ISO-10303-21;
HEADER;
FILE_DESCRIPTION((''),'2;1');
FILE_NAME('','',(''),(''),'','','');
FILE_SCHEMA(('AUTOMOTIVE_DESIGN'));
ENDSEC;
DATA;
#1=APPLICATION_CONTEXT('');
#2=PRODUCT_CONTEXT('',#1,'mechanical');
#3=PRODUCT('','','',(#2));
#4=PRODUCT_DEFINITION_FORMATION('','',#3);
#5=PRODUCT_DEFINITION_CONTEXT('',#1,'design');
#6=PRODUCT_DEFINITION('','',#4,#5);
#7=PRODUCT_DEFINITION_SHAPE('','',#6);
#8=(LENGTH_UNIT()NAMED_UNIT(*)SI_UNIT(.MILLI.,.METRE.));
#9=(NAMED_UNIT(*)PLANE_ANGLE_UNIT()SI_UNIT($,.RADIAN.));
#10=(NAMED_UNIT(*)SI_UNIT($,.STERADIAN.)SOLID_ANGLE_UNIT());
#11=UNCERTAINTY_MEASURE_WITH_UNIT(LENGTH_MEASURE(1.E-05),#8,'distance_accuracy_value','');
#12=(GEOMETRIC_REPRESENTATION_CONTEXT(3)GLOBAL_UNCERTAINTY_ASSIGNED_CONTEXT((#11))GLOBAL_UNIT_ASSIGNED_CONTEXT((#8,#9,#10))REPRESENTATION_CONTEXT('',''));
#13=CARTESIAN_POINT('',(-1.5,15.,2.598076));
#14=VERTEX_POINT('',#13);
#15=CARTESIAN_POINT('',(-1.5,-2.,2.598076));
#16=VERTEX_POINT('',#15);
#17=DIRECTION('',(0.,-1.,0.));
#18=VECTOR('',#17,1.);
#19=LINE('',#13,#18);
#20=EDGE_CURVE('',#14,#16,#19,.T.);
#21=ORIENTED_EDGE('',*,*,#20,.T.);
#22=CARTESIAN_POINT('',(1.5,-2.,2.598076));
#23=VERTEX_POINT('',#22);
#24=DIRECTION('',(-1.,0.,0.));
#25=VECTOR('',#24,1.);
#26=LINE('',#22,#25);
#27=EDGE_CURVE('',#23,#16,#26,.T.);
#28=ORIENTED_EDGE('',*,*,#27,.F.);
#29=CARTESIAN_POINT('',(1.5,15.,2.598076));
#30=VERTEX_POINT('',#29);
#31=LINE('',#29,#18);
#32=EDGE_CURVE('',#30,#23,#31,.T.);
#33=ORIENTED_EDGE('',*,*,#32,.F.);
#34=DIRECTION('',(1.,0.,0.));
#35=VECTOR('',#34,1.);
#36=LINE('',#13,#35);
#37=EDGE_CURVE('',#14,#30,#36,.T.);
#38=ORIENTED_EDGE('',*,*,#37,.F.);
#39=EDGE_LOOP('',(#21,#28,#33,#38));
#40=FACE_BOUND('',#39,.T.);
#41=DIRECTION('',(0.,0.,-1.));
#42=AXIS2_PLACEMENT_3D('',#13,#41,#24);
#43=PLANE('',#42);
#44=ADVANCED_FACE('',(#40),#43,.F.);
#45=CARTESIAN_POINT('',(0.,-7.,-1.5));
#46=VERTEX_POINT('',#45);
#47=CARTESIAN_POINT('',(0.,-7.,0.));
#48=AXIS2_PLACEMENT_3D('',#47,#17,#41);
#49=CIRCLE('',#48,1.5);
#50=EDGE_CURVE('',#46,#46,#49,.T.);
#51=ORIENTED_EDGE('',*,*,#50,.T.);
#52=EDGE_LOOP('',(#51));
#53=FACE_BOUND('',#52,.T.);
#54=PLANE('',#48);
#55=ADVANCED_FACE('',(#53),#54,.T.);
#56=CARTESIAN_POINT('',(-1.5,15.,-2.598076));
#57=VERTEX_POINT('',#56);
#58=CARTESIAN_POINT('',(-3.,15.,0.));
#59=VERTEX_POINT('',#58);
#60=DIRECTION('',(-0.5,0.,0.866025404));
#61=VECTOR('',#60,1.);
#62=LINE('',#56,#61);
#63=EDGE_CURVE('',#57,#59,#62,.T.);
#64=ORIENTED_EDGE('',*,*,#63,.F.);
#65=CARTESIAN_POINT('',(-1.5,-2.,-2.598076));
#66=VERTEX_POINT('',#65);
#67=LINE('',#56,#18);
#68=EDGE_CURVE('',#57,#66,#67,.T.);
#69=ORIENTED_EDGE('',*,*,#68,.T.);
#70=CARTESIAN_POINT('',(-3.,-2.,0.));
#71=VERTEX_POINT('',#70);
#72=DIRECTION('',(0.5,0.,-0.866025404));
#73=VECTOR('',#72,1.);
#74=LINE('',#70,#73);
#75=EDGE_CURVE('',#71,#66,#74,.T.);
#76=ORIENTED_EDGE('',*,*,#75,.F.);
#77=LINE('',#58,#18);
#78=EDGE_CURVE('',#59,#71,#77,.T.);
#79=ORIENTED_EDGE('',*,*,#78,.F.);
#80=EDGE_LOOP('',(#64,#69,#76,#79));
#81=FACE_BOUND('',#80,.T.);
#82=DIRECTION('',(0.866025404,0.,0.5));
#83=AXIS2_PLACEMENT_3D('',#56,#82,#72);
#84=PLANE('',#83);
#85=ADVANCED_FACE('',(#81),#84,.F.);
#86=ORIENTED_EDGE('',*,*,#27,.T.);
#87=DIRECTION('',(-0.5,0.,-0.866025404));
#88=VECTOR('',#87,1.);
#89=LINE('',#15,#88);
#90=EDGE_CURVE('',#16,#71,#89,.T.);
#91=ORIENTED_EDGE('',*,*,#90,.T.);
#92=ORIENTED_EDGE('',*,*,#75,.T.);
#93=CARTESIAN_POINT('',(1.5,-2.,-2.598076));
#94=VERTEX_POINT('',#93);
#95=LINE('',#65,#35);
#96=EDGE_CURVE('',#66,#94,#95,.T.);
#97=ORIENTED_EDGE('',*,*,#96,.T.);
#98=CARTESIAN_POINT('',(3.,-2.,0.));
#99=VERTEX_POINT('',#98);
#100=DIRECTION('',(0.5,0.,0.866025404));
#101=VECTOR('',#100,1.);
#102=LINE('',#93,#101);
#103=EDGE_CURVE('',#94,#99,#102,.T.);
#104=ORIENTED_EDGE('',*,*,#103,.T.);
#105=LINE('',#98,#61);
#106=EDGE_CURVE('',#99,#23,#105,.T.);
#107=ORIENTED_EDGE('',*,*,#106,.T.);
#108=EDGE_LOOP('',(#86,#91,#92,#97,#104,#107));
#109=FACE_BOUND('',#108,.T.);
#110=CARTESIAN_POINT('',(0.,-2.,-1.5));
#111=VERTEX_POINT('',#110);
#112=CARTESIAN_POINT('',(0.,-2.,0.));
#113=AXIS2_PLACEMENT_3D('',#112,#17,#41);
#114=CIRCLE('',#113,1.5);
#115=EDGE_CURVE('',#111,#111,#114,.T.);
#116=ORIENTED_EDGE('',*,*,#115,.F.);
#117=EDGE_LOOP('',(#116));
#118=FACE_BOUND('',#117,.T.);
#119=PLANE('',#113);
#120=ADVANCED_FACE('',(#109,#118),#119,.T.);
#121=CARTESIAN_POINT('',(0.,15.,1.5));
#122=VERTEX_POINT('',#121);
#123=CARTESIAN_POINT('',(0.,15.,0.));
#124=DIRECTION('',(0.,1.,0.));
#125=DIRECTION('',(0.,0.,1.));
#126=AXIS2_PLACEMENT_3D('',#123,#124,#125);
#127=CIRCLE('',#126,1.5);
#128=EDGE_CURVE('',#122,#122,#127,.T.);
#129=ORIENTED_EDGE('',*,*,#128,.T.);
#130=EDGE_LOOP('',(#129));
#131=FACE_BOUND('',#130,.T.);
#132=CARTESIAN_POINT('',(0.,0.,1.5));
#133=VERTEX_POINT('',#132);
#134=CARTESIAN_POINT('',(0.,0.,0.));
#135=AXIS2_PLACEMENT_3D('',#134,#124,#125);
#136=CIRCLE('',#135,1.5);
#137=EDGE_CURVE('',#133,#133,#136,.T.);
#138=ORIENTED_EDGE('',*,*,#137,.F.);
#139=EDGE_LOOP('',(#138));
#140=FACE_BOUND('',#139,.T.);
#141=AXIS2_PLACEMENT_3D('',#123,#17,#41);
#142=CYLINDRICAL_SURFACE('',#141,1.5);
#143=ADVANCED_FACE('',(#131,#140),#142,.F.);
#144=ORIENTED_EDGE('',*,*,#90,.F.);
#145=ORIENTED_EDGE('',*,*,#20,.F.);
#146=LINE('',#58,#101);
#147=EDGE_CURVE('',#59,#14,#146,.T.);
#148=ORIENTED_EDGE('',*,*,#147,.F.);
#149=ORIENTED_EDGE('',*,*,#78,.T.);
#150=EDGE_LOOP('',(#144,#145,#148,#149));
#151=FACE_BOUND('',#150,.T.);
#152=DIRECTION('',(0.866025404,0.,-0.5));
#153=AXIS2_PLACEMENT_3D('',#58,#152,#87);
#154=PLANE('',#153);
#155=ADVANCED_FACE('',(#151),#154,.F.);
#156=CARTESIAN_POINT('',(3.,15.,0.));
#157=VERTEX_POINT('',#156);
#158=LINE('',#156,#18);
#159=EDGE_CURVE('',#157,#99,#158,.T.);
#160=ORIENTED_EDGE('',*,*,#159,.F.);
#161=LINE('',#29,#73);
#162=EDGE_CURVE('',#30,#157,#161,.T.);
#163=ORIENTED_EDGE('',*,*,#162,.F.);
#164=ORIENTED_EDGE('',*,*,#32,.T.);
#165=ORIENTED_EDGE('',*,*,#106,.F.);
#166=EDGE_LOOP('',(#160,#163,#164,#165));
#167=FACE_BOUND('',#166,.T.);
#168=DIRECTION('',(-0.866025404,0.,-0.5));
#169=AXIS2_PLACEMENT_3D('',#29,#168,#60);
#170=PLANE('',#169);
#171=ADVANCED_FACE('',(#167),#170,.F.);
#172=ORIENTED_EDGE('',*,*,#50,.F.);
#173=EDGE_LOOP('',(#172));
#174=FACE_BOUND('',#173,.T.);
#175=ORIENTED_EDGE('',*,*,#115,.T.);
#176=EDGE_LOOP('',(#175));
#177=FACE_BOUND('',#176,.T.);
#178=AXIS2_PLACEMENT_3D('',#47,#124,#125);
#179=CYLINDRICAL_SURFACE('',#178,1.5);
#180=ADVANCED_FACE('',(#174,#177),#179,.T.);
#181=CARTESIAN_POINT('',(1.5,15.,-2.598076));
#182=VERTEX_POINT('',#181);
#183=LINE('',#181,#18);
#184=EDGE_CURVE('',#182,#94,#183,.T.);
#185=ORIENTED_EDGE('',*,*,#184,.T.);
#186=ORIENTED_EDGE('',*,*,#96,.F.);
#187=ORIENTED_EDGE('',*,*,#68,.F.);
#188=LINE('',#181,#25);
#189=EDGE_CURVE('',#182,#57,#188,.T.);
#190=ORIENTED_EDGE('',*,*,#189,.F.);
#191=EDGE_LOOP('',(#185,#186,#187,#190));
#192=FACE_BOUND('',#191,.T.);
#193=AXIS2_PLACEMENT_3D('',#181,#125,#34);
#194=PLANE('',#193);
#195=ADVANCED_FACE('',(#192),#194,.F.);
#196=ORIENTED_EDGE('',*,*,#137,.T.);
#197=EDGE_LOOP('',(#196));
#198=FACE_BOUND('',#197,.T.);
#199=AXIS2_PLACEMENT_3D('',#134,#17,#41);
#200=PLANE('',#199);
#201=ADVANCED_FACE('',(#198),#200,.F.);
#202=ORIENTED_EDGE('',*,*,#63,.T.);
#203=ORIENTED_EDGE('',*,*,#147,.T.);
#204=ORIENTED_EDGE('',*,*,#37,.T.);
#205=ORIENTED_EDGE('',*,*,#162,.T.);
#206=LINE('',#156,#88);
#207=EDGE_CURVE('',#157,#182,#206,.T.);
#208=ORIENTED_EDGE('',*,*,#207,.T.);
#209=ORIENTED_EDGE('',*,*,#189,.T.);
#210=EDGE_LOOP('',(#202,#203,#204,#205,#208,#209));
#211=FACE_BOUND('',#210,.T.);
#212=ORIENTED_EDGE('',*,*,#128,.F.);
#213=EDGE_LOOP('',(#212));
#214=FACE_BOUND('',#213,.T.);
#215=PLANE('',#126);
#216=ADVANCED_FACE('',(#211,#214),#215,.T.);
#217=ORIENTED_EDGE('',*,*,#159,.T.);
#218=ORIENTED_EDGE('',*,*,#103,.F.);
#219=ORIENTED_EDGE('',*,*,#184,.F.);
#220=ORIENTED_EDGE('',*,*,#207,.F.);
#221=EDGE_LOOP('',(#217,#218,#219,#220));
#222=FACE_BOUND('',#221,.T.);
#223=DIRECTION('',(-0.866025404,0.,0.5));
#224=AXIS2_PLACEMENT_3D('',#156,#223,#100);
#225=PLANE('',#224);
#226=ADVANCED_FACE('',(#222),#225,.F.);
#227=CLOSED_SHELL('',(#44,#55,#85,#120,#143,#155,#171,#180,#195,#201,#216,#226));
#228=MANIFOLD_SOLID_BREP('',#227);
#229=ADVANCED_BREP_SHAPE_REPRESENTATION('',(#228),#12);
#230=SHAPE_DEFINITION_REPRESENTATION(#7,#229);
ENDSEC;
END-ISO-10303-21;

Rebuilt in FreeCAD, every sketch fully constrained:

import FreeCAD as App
import Part
import Sketcher
Q = App.Units.Quantity

doc = App.newDocument("Part")
body = doc.addObject("PartDesign::Body", "Body")

sketch1 = body.newObject("Sketcher::SketchObject", "Sketch")
sketch1.AttachmentSupport = (doc.getObject("XZ_Plane"), [""])
sketch1.MapMode = "FlatFace"
sketch1.addGeometry([
    Part.LineSegment(App.Vector(3, 0, 0), App.Vector(1.5, -2.6, 0)),
    Part.LineSegment(App.Vector(1.5, -2.6, 0), App.Vector(-1.5, -2.6, 0)),
    Part.LineSegment(App.Vector(-1.5, -2.6, 0), App.Vector(-3, 0, 0)),
    Part.LineSegment(App.Vector(-3, 0, 0), App.Vector(-1.5, 2.6, 0)),
    Part.LineSegment(App.Vector(-1.5, 2.6, 0), App.Vector(1.5, 2.6, 0)),
    Part.LineSegment(App.Vector(1.5, 2.6, 0), App.Vector(3, 0, 0)),
    Part.Circle(App.Vector(0, 0, 0), App.Vector(0, 0, 1), 1.5),
], False)
sketch1.addConstraint([
    Sketcher.Constraint("Coincident", 0, 2, 1, 1),
    Sketcher.Constraint("Coincident", 1, 2, 2, 1),
    Sketcher.Constraint("Coincident", 2, 2, 3, 1),
    Sketcher.Constraint("Coincident", 3, 2, 4, 1),
    Sketcher.Constraint("Coincident", 4, 2, 5, 1),
    Sketcher.Constraint("Coincident", 5, 2, 0, 1),
    Sketcher.Constraint("Horizontal", 1),
    Sketcher.Constraint("Horizontal", 4),
    Sketcher.Constraint("Coincident", 6, 3, -1, 1),
    Sketcher.Constraint("Symmetric", 0, 2, 3, 2, -1, 1),
    Sketcher.Constraint("Symmetric", 2, 2, 5, 2, -1, 1),
    Sketcher.Constraint("PointOnObject", 2, 2, -1),
    Sketcher.Constraint("Parallel", 2, 5),
    Sketcher.Constraint("Vertical", 1, 2, 3, 2),
    Sketcher.Constraint("Diameter", 6, 3.0),
    Sketcher.Constraint("DistanceX", 1, 2, 1, 1, 3.0),
    Sketcher.Constraint("Angle", 0, Q("-120 deg")),
    Sketcher.Constraint("Distance", 0, 3.0),
])
pad1 = body.newObject("PartDesign::Pad", "Pad")
pad1.Profile = sketch1
pad1.Length = 15
pad1.Reversed = True

sketch2 = body.newObject("Sketcher::SketchObject", "Sketch001")
sketch2.AttachmentSupport = (doc.getObject("XZ_Plane"), [""])
sketch2.MapMode = "FlatFace"
sketch2.addGeometry([
    Part.LineSegment(App.Vector(1.5, 2.6, 0), App.Vector(-1.5, 2.6, 0)),
    Part.LineSegment(App.Vector(-1.5, 2.6, 0), App.Vector(-3, 0, 0)),
    Part.LineSegment(App.Vector(-3, 0, 0), App.Vector(-1.5, -2.6, 0)),
    Part.LineSegment(App.Vector(-1.5, -2.6, 0), App.Vector(1.5, -2.6, 0)),
    Part.LineSegment(App.Vector(1.5, -2.6, 0), App.Vector(3, 0, 0)),
    Part.LineSegment(App.Vector(3, 0, 0), App.Vector(1.5, 2.6, 0)),
], False)
sketch2.addConstraint([
    Sketcher.Constraint("Coincident", 0, 2, 1, 1),
    Sketcher.Constraint("Coincident", 1, 2, 2, 1),
    Sketcher.Constraint("Coincident", 2, 2, 3, 1),
    Sketcher.Constraint("Coincident", 3, 2, 4, 1),
    Sketcher.Constraint("Coincident", 4, 2, 5, 1),
    Sketcher.Constraint("Coincident", 5, 2, 0, 1),
    Sketcher.Constraint("Horizontal", 0),
    Sketcher.Constraint("Horizontal", 3),
    Sketcher.Constraint("Symmetric", 0, 2, 3, 2, -1, 1),
    Sketcher.Constraint("Symmetric", 1, 2, 4, 2, -1, 1),
    Sketcher.Constraint("PointOnObject", 1, 2, -1),
    Sketcher.Constraint("Parallel", 2, 5),
    Sketcher.Constraint("Vertical", 0, 2, 2, 2),
    Sketcher.Constraint("DistanceX", 0, 2, 0, 1, 3.0),
    Sketcher.Constraint("Angle", 1, Q("-120 deg")),
    Sketcher.Constraint("Distance", 1, 3.0),
])
pad2 = body.newObject("PartDesign::Pad", "Pad001")
pad2.Profile = sketch2
pad2.Length = 2

sketch3 = body.newObject("Sketcher::SketchObject", "Sketch002")
sketch3.AttachmentSupport = (doc.getObject("XZ_Plane"), [""])
sketch3.MapMode = "FlatFace"
sketch3.AttachmentOffset = App.Placement(App.Vector(0, 0, 7), App.Rotation())
sketch3.addGeometry(Part.Circle(App.Vector(0, 0, 0), App.Vector(0, 0, 1), 1.5), False)
sketch3.addConstraint([
    Sketcher.Constraint("Coincident", 0, 3, -1, 1),
    Sketcher.Constraint("Diameter", 0, 3.0),
])
pad3 = body.newObject("PartDesign::Pad", "Pad002")
pad3.Profile = sketch3
pad3.Length = 5
pad3.Reversed = True

doc.recompute()
